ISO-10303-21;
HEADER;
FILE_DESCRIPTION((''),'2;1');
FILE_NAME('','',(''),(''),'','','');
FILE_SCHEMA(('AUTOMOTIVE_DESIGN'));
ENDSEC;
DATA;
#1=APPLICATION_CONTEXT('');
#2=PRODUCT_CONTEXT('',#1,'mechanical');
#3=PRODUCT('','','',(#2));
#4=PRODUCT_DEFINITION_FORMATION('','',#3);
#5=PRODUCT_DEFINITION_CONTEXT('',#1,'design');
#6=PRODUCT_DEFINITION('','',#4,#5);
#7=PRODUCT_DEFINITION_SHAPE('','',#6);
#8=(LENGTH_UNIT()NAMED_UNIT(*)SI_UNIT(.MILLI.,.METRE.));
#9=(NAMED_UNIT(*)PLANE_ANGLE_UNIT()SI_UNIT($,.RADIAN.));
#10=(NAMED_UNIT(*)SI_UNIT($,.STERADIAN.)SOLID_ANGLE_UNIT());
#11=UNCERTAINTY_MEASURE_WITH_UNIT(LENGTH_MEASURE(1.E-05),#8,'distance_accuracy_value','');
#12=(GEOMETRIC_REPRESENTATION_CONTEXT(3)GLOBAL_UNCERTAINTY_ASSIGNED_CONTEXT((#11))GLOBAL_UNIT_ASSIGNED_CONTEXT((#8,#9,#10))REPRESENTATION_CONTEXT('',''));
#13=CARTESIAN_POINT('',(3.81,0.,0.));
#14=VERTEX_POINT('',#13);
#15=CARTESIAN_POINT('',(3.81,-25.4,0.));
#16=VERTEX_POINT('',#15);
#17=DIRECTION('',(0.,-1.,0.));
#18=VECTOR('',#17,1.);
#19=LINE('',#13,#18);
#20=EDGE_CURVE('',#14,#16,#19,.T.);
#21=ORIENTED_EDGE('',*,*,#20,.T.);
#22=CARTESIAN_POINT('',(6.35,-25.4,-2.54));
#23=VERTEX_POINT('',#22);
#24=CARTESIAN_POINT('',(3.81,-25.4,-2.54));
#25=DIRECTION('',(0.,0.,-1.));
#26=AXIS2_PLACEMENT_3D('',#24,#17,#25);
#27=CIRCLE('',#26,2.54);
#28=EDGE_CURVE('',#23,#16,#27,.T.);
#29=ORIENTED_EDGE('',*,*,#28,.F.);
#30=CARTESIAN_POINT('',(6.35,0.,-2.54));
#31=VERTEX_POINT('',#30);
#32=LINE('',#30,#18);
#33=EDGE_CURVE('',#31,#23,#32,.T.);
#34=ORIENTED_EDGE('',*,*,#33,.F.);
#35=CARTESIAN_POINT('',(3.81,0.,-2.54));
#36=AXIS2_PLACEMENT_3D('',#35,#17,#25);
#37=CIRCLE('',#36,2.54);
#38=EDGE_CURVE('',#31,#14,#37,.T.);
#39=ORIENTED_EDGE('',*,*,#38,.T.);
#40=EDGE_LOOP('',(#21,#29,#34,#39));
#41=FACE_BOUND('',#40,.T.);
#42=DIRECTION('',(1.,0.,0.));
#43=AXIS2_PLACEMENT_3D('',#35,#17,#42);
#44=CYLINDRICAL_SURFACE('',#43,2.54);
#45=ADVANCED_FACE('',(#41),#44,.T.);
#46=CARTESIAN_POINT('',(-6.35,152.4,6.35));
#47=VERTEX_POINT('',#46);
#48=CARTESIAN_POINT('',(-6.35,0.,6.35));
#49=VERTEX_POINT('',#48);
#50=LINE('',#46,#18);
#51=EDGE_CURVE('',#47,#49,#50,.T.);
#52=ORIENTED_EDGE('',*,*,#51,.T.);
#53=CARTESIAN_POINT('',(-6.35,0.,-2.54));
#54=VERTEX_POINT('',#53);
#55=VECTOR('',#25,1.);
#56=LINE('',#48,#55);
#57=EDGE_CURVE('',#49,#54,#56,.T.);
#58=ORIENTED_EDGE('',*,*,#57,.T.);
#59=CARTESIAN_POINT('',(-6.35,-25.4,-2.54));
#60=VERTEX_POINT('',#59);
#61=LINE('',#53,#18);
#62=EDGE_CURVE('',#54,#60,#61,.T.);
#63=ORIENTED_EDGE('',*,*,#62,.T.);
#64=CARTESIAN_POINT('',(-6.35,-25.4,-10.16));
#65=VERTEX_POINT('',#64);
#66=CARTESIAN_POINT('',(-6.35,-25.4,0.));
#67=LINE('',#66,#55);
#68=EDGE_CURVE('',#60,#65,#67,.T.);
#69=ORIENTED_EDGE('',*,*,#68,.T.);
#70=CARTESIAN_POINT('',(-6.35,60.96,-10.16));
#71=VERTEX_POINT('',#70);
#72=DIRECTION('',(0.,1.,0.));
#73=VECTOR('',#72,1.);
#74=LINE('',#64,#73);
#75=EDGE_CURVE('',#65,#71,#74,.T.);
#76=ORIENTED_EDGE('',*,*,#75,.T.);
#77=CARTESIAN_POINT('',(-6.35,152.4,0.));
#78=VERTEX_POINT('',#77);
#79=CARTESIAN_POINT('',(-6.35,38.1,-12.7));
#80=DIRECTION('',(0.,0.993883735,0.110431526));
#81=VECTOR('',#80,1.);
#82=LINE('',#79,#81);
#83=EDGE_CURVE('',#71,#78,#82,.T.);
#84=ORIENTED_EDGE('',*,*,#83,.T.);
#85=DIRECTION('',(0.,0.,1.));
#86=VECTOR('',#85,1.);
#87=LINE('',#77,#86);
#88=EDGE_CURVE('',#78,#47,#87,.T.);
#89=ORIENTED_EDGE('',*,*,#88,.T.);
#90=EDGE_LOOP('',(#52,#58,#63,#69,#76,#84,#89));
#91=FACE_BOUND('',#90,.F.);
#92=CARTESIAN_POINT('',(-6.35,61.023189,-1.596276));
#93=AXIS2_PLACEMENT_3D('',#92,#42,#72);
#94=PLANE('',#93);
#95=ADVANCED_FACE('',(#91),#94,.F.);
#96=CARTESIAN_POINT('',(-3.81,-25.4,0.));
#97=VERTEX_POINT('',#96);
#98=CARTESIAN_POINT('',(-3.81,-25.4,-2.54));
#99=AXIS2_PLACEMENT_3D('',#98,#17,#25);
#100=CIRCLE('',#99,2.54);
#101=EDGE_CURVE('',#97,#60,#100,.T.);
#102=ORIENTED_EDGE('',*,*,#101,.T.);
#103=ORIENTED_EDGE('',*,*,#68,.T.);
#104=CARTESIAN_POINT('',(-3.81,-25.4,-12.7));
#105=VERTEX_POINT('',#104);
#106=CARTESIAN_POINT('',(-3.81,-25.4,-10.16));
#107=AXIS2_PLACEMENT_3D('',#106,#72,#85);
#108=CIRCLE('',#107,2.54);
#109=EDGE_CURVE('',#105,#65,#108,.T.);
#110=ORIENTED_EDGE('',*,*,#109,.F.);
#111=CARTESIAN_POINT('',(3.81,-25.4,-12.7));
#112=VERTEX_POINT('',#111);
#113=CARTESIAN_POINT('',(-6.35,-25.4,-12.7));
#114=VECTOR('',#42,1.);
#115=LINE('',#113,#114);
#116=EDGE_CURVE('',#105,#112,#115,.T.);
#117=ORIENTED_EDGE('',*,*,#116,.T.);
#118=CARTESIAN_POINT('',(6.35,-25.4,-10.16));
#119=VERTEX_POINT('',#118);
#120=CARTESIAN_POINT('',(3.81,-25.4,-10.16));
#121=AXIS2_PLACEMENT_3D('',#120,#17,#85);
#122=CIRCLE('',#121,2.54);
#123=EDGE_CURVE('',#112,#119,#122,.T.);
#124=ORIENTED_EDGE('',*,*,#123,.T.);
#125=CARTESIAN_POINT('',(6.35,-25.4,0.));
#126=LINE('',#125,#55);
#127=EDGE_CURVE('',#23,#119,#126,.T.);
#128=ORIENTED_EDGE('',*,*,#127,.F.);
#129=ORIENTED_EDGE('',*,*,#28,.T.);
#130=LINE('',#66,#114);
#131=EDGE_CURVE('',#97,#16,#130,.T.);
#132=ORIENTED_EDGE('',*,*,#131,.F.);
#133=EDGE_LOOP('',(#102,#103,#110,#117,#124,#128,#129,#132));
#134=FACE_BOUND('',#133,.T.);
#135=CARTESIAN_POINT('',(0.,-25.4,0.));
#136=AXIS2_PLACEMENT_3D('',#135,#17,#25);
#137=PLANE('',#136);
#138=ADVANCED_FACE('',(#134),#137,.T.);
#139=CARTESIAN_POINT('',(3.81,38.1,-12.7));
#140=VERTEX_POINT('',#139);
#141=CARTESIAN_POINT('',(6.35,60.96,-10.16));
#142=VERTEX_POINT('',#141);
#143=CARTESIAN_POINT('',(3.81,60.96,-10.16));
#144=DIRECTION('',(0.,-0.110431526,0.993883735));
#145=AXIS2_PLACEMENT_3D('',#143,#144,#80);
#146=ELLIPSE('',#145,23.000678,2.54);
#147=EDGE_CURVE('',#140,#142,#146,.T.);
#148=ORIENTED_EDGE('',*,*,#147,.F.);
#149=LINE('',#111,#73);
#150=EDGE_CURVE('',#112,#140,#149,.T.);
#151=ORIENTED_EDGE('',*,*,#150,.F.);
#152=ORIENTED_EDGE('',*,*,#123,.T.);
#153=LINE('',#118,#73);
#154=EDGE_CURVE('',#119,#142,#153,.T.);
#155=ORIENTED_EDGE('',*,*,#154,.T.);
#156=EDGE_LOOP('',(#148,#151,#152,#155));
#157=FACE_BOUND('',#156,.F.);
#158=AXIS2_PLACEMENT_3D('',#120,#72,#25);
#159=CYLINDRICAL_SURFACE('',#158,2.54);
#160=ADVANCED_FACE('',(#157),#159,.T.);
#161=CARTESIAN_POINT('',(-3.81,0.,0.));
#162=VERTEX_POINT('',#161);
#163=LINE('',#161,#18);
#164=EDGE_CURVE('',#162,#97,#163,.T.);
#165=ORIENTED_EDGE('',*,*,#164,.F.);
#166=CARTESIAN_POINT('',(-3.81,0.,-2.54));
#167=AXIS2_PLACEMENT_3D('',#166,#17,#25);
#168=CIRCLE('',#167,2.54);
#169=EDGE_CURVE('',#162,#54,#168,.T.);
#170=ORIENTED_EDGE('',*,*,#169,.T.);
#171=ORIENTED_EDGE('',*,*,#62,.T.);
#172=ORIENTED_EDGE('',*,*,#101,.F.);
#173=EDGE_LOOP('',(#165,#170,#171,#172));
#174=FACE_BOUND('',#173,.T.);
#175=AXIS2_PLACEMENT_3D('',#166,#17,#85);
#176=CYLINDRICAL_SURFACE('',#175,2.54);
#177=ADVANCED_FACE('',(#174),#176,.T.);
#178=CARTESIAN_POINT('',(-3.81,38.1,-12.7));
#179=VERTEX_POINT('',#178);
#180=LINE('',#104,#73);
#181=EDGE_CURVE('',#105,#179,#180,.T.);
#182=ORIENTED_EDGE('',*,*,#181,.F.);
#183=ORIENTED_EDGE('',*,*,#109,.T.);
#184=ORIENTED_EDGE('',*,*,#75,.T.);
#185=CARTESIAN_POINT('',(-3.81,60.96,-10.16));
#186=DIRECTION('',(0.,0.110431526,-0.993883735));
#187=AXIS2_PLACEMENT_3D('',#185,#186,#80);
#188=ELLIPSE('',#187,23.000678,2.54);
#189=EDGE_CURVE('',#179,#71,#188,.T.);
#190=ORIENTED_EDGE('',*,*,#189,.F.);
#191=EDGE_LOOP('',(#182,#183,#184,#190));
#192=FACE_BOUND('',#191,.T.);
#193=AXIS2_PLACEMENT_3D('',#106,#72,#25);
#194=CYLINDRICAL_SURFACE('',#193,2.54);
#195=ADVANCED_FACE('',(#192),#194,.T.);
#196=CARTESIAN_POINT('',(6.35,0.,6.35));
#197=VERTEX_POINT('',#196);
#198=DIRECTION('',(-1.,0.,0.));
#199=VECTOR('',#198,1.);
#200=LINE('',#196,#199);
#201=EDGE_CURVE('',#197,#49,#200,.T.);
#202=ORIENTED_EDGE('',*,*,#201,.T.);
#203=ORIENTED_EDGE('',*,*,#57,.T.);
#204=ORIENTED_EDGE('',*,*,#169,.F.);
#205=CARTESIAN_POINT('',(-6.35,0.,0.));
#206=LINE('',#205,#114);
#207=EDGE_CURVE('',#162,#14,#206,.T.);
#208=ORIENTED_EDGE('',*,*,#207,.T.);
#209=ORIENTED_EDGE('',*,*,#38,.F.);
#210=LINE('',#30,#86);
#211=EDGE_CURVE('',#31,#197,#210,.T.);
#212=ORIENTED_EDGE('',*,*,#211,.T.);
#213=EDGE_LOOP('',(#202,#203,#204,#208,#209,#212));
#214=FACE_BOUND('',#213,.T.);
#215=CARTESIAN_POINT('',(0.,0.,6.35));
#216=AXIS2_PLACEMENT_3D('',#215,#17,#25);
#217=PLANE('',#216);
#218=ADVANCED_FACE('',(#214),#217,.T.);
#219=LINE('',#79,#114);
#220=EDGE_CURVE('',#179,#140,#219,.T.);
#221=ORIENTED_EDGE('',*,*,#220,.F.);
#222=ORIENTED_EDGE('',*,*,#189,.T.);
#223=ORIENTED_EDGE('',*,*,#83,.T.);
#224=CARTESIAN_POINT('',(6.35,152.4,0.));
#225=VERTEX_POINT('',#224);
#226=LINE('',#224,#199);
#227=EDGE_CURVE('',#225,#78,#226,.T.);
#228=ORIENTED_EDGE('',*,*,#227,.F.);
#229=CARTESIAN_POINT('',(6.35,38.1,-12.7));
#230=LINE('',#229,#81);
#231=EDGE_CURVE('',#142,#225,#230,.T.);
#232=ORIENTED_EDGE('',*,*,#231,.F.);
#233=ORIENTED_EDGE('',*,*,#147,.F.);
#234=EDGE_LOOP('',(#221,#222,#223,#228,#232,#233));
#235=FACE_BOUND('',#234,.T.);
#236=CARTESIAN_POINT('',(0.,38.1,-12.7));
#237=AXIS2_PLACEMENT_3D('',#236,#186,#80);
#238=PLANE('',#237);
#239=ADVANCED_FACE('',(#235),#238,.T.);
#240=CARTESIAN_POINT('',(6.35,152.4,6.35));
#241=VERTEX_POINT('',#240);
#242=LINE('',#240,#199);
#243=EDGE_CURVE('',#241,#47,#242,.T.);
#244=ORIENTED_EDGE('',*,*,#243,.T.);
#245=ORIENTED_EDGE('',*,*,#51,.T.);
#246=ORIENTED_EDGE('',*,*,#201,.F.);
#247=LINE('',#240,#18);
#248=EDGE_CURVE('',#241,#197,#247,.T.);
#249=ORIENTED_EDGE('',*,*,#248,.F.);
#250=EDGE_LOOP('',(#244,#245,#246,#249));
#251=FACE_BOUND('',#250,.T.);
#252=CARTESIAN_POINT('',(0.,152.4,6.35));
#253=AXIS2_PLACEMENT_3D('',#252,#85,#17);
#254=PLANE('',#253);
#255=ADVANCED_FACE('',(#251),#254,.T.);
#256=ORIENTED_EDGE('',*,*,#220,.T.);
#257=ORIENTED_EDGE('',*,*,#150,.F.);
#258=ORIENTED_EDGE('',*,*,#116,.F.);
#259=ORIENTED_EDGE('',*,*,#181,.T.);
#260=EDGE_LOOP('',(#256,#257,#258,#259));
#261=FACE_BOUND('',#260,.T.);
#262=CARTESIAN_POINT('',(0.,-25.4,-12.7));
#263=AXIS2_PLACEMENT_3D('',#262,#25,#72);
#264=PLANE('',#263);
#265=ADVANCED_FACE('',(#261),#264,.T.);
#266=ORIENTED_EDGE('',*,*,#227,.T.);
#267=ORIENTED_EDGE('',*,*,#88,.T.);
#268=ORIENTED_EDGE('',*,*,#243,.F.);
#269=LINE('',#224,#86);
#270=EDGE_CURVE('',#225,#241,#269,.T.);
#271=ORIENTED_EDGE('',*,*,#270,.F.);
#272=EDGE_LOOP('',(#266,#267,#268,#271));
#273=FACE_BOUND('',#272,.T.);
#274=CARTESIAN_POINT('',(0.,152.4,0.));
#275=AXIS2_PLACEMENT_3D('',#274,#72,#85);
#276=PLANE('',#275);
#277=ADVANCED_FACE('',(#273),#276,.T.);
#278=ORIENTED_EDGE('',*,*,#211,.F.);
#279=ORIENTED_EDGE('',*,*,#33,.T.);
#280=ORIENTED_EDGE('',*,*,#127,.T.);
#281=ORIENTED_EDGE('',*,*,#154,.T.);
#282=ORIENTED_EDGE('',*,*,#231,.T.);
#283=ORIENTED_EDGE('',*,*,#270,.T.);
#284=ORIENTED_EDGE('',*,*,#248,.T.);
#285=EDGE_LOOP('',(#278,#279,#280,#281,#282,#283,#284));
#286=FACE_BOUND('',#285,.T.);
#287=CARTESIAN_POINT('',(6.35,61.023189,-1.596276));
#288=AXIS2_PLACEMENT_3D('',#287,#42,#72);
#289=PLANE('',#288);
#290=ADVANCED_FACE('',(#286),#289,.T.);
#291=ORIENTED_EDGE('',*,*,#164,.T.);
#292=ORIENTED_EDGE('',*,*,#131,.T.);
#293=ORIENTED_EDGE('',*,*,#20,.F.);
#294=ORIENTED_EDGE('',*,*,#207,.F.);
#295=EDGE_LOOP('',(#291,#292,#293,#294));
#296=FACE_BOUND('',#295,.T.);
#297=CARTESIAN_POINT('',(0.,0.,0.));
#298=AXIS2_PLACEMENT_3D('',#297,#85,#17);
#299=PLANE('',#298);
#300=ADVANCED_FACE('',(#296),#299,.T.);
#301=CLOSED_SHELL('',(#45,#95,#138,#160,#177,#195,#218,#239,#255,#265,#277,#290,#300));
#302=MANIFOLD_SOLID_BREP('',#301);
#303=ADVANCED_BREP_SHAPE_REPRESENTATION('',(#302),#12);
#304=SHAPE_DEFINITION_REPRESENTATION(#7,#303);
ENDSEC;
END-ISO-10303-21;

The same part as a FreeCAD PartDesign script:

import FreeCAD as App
import Part
import Sketcher

V = App.Vector
Q = App.Units.Quantity


def edges_at(feature, points):
    """Names of the edges that pass closest to the given points."""
    edges = feature.Shape.Edges
    near = lambda p: min(range(len(edges)), key=lambda i: edges[i].distToShape(Part.Vertex(*p))[0])
    return sorted({f"Edge{near(p) + 1}" for p in points})


def add_polygon(sketch, points):
    """Adds a closed chain of lines whose ends are joined by coincident constraints."""
    first, n = sketch.GeometryCount, len(points)
    for a, b in zip(points, points[1:] + points[:1]):
        sketch.addGeometry(Part.LineSegment(App.Vector(*a, 0), App.Vector(*b, 0)), False)
    for i in range(n):
        sketch.addConstraint(Sketcher.Constraint("Coincident", first + i, 2, first + (i + 1) % n, 1))

doc = App.newDocument("Part")
params = doc.addObject("Spreadsheet::Sheet", "Params")
for row, (alias, value) in enumerate([
    ("sketch1_width", "1 in"),
    ("sketch1_width2", "6 in"),
    ("sketch1_width3", "2.5 in"),
    ("sketch1_height", "0.5 in"),
    ("sketch1_height2", "0.25 in"),
    ("pad1_length", "0.5 in"),
    ("fillet_radius", "0.1 in"),
], start=1):
    params.set(f"A{row}", alias)
    params.set(f"B{row}", "=" + value)
    params.setAlias(f"B{row}", alias)

body = doc.addObject("PartDesign::Body", "Body")

sketch1 = body.newObject("Sketcher::SketchObject", "Sketch")
sketch1.AttachmentSupport = (doc.getObject("YZ_Plane"), [""])
sketch1.MapMode = "FlatFace"
add_polygon(sketch1, [(0, 6), (0, 0), (-25, 0), (-25, -13), (38, -13), (152, 0), (152, 6)])
sketch1.addConstraint([
    Sketcher.Constraint("Vertical", 0),
    Sketcher.Constraint("Horizontal", 1),
    Sketcher.Constraint("Vertical", 2),
    Sketcher.Constraint("Horizontal", 3),
    Sketcher.Constraint("Vertical", 5),
    Sketcher.Constraint("Horizontal", 6),
    Sketcher.Constraint("Coincident", 0, 2, -1, 1),
    Sketcher.Constraint("PointOnObject", 4, 2, -1),
    Sketcher.Constraint("DistanceX", 1, 2, 1, 1, Q("1 in")),
    Sketcher.Constraint("DistanceX", 6, 2, 6, 1, Q("6 in")),
    Sketcher.Constraint("DistanceX", 3, 1, 3, 2, Q("2.5 in")),
    Sketcher.Constraint("DistanceY", 2, 2, 2, 1, Q("0.5 in")),
    Sketcher.Constraint("DistanceY", 0, 2, 0, 1, Q("0.25 in")),
])
sketch1.setExpression("Constraints[15]", "Params.sketch1_width")
sketch1.setExpression("Constraints[16]", "Params.sketch1_width2")
sketch1.setExpression("Constraints[17]", "Params.sketch1_width3")
sketch1.setExpression("Constraints[18]", "Params.sketch1_height")
sketch1.setExpression("Constraints[19]", "Params.sketch1_height2")
pad1 = body.newObject("PartDesign::Pad", "Pad")
pad1.Profile = sketch1
pad1.setExpression("Length", "Params.pad1_length")
pad1.Midplane = True
doc.recompute()

fillet = body.newObject("PartDesign::Fillet", "Fillet")
fillet.Base = (pad1, edges_at(pad1, [
    (6.35, -12.7, 0),
    (-6.35, -12.7, 0),
    (6.35, 6.35, -12.7),
    (-6.35, 6.35, -12.7),
]))
fillet.setExpression("Radius", "Params.fillet_radius")

doc.recompute()
